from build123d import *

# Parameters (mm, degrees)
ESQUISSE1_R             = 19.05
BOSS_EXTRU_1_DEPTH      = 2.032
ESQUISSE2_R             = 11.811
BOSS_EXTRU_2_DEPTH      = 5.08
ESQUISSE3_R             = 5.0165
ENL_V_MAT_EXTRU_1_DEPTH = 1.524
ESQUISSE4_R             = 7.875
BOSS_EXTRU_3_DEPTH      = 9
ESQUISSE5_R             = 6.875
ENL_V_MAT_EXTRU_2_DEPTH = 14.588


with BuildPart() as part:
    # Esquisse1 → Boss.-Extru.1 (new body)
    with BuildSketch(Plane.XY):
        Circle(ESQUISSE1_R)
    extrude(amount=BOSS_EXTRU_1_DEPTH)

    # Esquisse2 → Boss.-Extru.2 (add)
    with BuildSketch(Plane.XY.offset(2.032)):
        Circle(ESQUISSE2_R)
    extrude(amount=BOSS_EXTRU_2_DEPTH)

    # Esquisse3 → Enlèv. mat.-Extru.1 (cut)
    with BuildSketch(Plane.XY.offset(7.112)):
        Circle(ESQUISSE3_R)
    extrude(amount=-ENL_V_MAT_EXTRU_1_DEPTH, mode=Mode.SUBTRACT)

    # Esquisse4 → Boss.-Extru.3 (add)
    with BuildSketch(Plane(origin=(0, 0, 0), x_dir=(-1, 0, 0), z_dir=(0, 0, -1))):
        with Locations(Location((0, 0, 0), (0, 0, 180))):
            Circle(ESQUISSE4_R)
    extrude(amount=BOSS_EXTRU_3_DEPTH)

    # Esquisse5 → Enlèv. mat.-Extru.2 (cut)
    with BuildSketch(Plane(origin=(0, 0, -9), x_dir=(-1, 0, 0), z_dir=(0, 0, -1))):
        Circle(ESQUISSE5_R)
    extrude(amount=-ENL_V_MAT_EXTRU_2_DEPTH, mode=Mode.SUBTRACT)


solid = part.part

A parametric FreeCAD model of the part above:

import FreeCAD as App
import Part
import Sketcher
from FreeCAD import Vector
Q = App.Units.Quantity

doc = App.newDocument("Part")
body = doc.addObject("PartDesign::Body", "Body")

# Sketch on XY plane
sketch1 = doc.addObject("Sketcher::SketchObject", "Sketch")
body.addObject(sketch1)
sketch1.AttachmentSupport = (doc.XY_Plane, [""])
sketch1.MapMode = "FlatFace"
sketch1.addGeometry(Part.Circle(Vector(0, 0, 0), Vector(0, 0, 1), 19.05), False)
sketch1.addConstraint(Sketcher.Constraint("Coincident", 0, 3, -1, 1))
sketch1.addConstraint(Sketcher.Constraint("Diameter", 0, Q("1.5 in")))
pad1 = doc.addObject("PartDesign::Pad", "Pad")
body.addObject(pad1)
pad1.Profile = sketch1
pad1.Length = Q("0.08 in")

# Sketch on XY plane
sketch2 = doc.addObject("Sketcher::SketchObject", "Sketch001")
body.addObject(sketch2)
sketch2.AttachmentSupport = (doc.XY_Plane, [""])
sketch2.MapMode = "FlatFace"
sketch2.AttachmentOffset = App.Placement(Vector(0, 0, 0.08 * 25.4), App.Rotation())
sketch2.addGeometry(Part.Circle(Vector(0, 0, 0), Vector(0, 0, 1), 11.811), False)
sketch2.addConstraint(Sketcher.Constraint("Coincident", 0, 3, -1, 1))
sketch2.addConstraint(Sketcher.Constraint("Diameter", 0, Q("0.93 in")))
pad2 = doc.addObject("PartDesign::Pad", "Pad001")
body.addObject(pad2)
pad2.Profile = sketch2
pad2.Length = Q("0.2 in")

# Sketch on XY plane
sketch3 = doc.addObject("Sketcher::SketchObject", "Sketch002")
body.addObject(sketch3)
sketch3.AttachmentSupport = (doc.XY_Plane, [""])
sketch3.MapMode = "FlatFace"
sketch3.AttachmentOffset = App.Placement(Vector(0, 0, 0.28 * 25.4), App.Rotation())
sketch3.addGeometry(Part.Circle(Vector(0, 0, 0), Vector(0, 0, 1), 5.0165), False)
sketch3.addConstraint(Sketcher.Constraint("Coincident", 0, 3, -1, 1))
sketch3.addConstraint(Sketcher.Constraint("Diameter", 0, Q("0.395 in")))
pocket1 = doc.addObject("PartDesign::Pocket", "Pocket")
body.addObject(pocket1)
pocket1.Profile = sketch3
pocket1.Length = Q("0.06 in")

# Sketch on XY plane
sketch4 = doc.addObject("Sketcher::SketchObject", "Sketch003")
body.addObject(sketch4)
sketch4.AttachmentSupport = (doc.XY_Plane, [""])
sketch4.MapMode = "FlatFace"
sketch4.addGeometry(Part.Circle(Vector(0, 0, 0), Vector(0, 0, 1), 7.875), False)
sketch4.addConstraint(Sketcher.Constraint("Coincident", 0, 3, -1, 1))
sketch4.addConstraint(Sketcher.Constraint("Diameter", 0, 15.75))
pad3 = doc.addObject("PartDesign::Pad", "Pad002")
body.addObject(pad3)
pad3.Profile = sketch4
pad3.Length = 9
pad3.Reversed = True

# Sketch on XY plane
sketch5 = doc.addObject("Sketcher::SketchObject", "Sketch004")
body.addObject(sketch5)
sketch5.AttachmentSupport = (doc.XY_Plane, [""])
sketch5.MapMode = "FlatFace"
sketch5.AttachmentOffset = App.Placement(Vector(0, 0, -9), App.Rotation())
sketch5.addGeometry(Part.Circle(Vector(0, 0, 0), Vector(0, 0, 1), 6.875), False)
sketch5.addConstraint(Sketcher.Constraint("Coincident", 0, 3, -1, 1))
sketch5.addConstraint(Sketcher.Constraint("Diameter", 0, 13.75))
pocket2 = doc.addObject("PartDesign::Pocket", "Pocket001")
body.addObject(pocket2)
pocket2.Profile = sketch5
pocket2.Length = 14.588
pocket2.Reversed = True

doc.recompute()
